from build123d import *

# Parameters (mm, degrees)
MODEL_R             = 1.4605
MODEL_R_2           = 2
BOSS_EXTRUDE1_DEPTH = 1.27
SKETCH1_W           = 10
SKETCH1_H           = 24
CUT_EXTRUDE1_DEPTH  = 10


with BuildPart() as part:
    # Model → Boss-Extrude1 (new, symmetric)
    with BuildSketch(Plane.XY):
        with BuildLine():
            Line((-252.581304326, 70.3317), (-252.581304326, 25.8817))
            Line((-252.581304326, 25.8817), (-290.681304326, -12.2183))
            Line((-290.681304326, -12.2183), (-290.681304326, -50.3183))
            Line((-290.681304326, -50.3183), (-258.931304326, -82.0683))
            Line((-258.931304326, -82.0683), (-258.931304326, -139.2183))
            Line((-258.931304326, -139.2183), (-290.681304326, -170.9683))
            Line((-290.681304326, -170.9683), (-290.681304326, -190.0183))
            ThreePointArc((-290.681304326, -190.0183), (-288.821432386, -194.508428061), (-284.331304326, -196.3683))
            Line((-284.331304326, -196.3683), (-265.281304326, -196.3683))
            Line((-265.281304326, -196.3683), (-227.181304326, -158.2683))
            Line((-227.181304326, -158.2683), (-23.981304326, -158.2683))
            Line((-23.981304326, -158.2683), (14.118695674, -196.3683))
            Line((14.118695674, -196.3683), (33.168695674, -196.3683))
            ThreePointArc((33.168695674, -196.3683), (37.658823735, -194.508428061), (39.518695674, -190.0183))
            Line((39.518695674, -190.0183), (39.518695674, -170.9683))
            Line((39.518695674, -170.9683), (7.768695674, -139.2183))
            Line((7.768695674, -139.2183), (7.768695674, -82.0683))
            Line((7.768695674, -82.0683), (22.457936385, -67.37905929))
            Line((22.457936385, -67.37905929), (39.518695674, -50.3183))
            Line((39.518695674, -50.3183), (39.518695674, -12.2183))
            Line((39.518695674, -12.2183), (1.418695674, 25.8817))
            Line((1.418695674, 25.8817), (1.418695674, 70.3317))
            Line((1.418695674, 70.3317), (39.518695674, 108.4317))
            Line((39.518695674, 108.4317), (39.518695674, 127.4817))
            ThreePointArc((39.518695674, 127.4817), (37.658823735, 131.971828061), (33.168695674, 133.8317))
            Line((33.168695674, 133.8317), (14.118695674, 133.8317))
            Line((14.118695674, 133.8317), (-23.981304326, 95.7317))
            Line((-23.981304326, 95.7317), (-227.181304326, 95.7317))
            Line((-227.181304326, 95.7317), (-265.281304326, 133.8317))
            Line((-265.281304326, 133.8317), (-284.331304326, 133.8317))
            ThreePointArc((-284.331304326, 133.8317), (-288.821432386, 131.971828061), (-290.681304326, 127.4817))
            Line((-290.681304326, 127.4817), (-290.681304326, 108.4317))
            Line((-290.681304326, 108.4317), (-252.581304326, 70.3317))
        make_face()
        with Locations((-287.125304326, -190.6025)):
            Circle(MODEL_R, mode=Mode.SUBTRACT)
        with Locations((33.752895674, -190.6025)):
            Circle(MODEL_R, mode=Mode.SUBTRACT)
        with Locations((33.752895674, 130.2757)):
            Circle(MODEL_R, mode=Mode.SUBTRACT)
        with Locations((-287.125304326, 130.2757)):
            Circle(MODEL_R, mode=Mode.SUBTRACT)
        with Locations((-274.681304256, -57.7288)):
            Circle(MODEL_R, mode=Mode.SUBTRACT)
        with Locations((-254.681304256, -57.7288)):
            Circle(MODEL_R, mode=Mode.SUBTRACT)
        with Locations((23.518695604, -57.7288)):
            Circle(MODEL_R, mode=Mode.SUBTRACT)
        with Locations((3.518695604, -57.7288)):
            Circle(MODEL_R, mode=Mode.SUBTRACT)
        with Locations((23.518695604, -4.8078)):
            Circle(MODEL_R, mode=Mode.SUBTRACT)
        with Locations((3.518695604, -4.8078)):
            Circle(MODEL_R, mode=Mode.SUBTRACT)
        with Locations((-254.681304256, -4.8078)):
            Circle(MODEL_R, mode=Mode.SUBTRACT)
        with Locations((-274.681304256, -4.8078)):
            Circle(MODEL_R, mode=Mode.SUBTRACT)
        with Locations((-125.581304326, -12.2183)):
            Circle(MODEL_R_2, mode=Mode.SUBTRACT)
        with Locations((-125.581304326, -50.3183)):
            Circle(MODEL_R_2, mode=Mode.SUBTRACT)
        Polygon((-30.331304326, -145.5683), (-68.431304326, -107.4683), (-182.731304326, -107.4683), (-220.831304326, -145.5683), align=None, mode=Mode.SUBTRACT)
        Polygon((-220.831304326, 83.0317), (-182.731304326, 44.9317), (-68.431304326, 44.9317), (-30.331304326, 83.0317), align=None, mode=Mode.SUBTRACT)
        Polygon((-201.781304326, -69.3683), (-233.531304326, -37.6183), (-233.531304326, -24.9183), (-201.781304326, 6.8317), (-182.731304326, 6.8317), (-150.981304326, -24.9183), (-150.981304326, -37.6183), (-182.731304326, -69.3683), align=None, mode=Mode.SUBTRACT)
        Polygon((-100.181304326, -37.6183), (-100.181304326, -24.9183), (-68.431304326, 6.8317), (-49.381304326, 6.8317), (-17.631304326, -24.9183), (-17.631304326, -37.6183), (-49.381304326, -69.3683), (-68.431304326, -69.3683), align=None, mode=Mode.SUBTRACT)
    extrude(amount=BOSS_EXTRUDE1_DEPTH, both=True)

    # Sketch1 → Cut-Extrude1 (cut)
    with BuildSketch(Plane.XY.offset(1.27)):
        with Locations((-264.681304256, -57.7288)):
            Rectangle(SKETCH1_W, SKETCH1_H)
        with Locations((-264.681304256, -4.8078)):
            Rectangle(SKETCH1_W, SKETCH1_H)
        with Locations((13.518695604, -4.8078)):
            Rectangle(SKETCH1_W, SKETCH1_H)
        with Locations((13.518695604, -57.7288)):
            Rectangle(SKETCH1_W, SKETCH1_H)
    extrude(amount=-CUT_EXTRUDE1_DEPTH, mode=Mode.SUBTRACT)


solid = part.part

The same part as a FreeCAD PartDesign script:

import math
import FreeCAD as App
import Part
import Sketcher
Q = App.Units.Quantity

doc = App.newDocument("Part")
params = doc.addObject("Spreadsheet::Sheet", "Params")
for row, (alias, value) in enumerate([
    ("sketch1_width", "8 in"),
    ("sketch1_radius", "0.25 in"),
    ("sketch1_diameter", "0.115 in"),
    ("sketch1_width2", "7.5 in"),
    ("sketch1_width3", "4.5 in"),
    ("pad1_length", "0.1 in"),
    ("pocket1_length", "10 mm"),
], start=1):
    params.set(f"A{row}", alias)
    params.set(f"B{row}", "=" + value)
    params.setAlias(f"B{row}", alias)

body = doc.addObject("PartDesign::Body", "Body")

sketch1 = body.newObject("Sketcher::SketchObject", "Sketch")
sketch1.AttachmentSupport = (doc.getObject("XY_Plane"), [""])
sketch1.MapMode = "FlatFace"
sketch1.addGeometry([
    Part.LineSegment(App.Vector(-252.6, 70.3, 0), App.Vector(-252.6, 25.9, 0)),
    Part.LineSegment(App.Vector(-252.6, 25.9, 0), App.Vector(-290.7, -12.2, 0)),
    Part.LineSegment(App.Vector(-290.7, -12.2, 0), App.Vector(-290.7, -50.3, 0)),
    Part.LineSegment(App.Vector(-290.7, -50.3, 0), App.Vector(-258.9, -82.1, 0)),
    Part.LineSegment(App.Vector(-258.9, -82.1, 0), App.Vector(-258.9, -139.2, 0)),
    Part.LineSegment(App.Vector(-258.9, -139.2, 0), App.Vector(-290.7, -171, 0)),
    Part.LineSegment(App.Vector(-290.7, -171, 0), App.Vector(-290.7, -190, 0)),
    Part.ArcOfCircle(Part.Circle(App.Vector(-284.3, -190, 0), App.Vector(0, 0, 1), 6.3), math.radians(180), math.radians(270)),
    Part.LineSegment(App.Vector(-284.3, -196.4, 0), App.Vector(-265.3, -196.4, 0)),
    Part.LineSegment(App.Vector(-265.3, -196.4, 0), App.Vector(-227.2, -158.3, 0)),
    Part.LineSegment(App.Vector(-227.2, -158.3, 0), App.Vector(-24, -158.3, 0)),
    Part.LineSegment(App.Vector(-24, -158.3, 0), App.Vector(14.1, -196.4, 0)),
    Part.LineSegment(App.Vector(14.1, -196.4, 0), App.Vector(33.2, -196.4, 0)),
    Part.ArcOfCircle(Part.Circle(App.Vector(33.2, -190, 0), App.Vector(0, 0, 1), 6.3), math.radians(-90), math.radians(0)),
    Part.LineSegment(App.Vector(39.5, -190, 0), App.Vector(39.5, -171, 0)),
    Part.LineSegment(App.Vector(39.5, -171, 0), App.Vector(7.8, -139.2, 0)),
    Part.LineSegment(App.Vector(7.8, -139.2, 0), App.Vector(7.8, -82.1, 0)),
    Part.LineSegment(App.Vector(7.8, -82.1, 0), App.Vector(22.5, -67.4, 0)),
    Part.LineSegment(App.Vector(22.5, -67.4, 0), App.Vector(39.5, -50.3, 0)),
    Part.LineSegment(App.Vector(39.5, -50.3, 0), App.Vector(39.5, -12.2, 0)),
    Part.LineSegment(App.Vector(39.5, -12.2, 0), App.Vector(1.4, 25.9, 0)),
    Part.LineSegment(App.Vector(1.4, 25.9, 0), App.Vector(1.4, 70.3, 0)),
    Part.LineSegment(App.Vector(1.4, 70.3, 0), App.Vector(39.5, 108.4, 0)),
    Part.LineSegment(App.Vector(39.5, 108.4, 0), App.Vector(39.5, 127.5, 0)),
    Part.ArcOfCircle(Part.Circle(App.Vector(33.2, 127.5, 0), App.Vector(0, 0, 1), 6.3), math.radians(0), math.radians(90)),
    Part.LineSegment(App.Vector(33.2, 133.8, 0), App.Vector(14.1, 133.8, 0)),
    Part.LineSegment(App.Vector(14.1, 133.8, 0), App.Vector(-24, 95.7, 0)),
    Part.LineSegment(App.Vector(-24, 95.7, 0), App.Vector(-227.2, 95.7, 0)),
    Part.LineSegment(App.Vector(-227.2, 95.7, 0), App.Vector(-265.3, 133.8, 0)),
    Part.LineSegment(App.Vector(-265.3, 133.8, 0), App.Vector(-284.3, 133.8, 0)),
    Part.ArcOfCircle(Part.Circle(App.Vector(-284.3, 127.5, 0), App.Vector(0, 0, 1), 6.3), math.radians(90), math.radians(180)),
    Part.LineSegment(App.Vector(-290.7, 127.5, 0), App.Vector(-290.7, 108.4, 0)),
    Part.LineSegment(App.Vector(-290.7, 108.4, 0), App.Vector(-252.6, 70.3, 0)),
    Part.Circle(App.Vector(-287.1, -190.6, 0), App.Vector(0, 0, 1), 1.5),
    Part.Circle(App.Vector(-274.7, -57.7, 0), App.Vector(0, 0, 1), 1.5),
    Part.Circle(App.Vector(-254.7, -57.7, 0), App.Vector(0, 0, 1), 1.5),
    Part.LineSegment(App.Vector(-182.7, -69.4, 0), App.Vector(-201.8, -69.4, 0)),
    Part.LineSegment(App.Vector(-201.8, -69.4, 0), App.Vector(-233.5, -37.6, 0)),
    Part.LineSegment(App.Vector(-233.5, -37.6, 0), App.Vector(-233.5, -24.9, 0)),
    Part.LineSegment(App.Vector(-233.5, -24.9, 0), App.Vector(-201.8, 6.8, 0)),
    Part.LineSegment(App.Vector(-201.8, 6.8, 0), App.Vector(-182.7, 6.8, 0)),
    Part.LineSegment(App.Vector(-182.7, 6.8, 0), App.Vector(-151, -24.9, 0)),
    Part.LineSegment(App.Vector(-151, -24.9, 0), App.Vector(-151, -37.6, 0)),
    Part.LineSegment(App.Vector(-151, -37.6, 0), App.Vector(-182.7, -69.4, 0)),
    Part.LineSegment(App.Vector(-68.4, -107.5, 0), App.Vector(-30.3, -145.6, 0)),
    Part.LineSegment(App.Vector(-30.3, -145.6, 0), App.Vector(-220.8, -145.6, 0)),
    Part.LineSegment(App.Vector(-220.8, -145.6, 0), App.Vector(-182.7, -107.5, 0)),
    Part.LineSegment(App.Vector(-182.7, -107.5, 0), App.Vector(-68.4, -107.5, 0)),
    Part.Circle(App.Vector(33.8, -190.6, 0), App.Vector(0, 0, 1), 1.5),
    Part.Circle(App.Vector(-125.6, -50.3, 0), App.Vector(0, 0, 1), 2),
    Part.LineSegment(App.Vector(-68.4, -69.4, 0), App.Vector(-100.2, -37.6, 0)),
    Part.LineSegment(App.Vector(-100.2, -37.6, 0), App.Vector(-100.2, -24.9, 0)),
    Part.LineSegment(App.Vector(-100.2, -24.9, 0), App.Vector(-68.4, 6.8, 0)),
    Part.LineSegment(App.Vector(-68.4, 6.8, 0), App.Vector(-49.4, 6.8, 0)),
    Part.LineSegment(App.Vector(-49.4, 6.8, 0), App.Vector(-17.6, -24.9, 0)),
    Part.LineSegment(App.Vector(-17.6, -24.9, 0), App.Vector(-17.6, -37.6, 0)),
    Part.LineSegment(App.Vector(-17.6, -37.6, 0), App.Vector(-49.4, -69.4, 0)),
    Part.LineSegment(App.Vector(-49.4, -69.4, 0), App.Vector(-68.4, -69.4, 0)),
    Part.Circle(App.Vector(3.5, -57.7, 0), App.Vector(0, 0, 1), 1.5),
    Part.Circle(App.Vector(23.5, -57.7, 0), App.Vector(0, 0, 1), 1.5),
    Part.Circle(App.Vector(-274.7, -4.8, 0), App.Vector(0, 0, 1), 1.5),
    Part.Circle(App.Vector(-254.7, -4.8, 0), App.Vector(0, 0, 1), 1.5),
    Part.Circle(App.Vector(-287.1, 130.3, 0), App.Vector(0, 0, 1), 1.5),
    Part.Circle(App.Vector(-125.6, -12.2, 0), App.Vector(0, 0, 1), 2),
    Part.Circle(App.Vector(3.5, -4.8, 0), App.Vector(0, 0, 1), 1.5),
    Part.Circle(App.Vector(23.5, -4.8, 0), App.Vector(0, 0, 1), 1.5),
    Part.LineSegment(App.Vector(-182.7, 44.9, 0), App.Vector(-220.8, 83, 0)),
    Part.LineSegment(App.Vector(-220.8, 83, 0), App.Vector(-30.3, 83, 0)),
    Part.LineSegment(App.Vector(-30.3, 83, 0), App.Vector(-68.4, 44.9, 0)),
    Part.LineSegment(App.Vector(-68.4, 44.9, 0), App.Vector(-182.7, 44.9, 0)),
    Part.Circle(App.Vector(33.8, 130.3, 0), App.Vector(0, 0, 1), 1.5),
], False)
sketch1.addConstraint([
    Sketcher.Constraint("Coincident", 0, 2, 1, 1),
    Sketcher.Constraint("Coincident", 1, 2, 2, 1),
    Sketcher.Constraint("Coincident", 2, 2, 3, 1),
    Sketcher.Constraint("Coincident", 3, 2, 4, 1),
    Sketcher.Constraint("Coincident", 4, 2, 5, 1),
    Sketcher.Constraint("Coincident", 5, 2, 6, 1),
    Sketcher.Constraint("Tangent", 6, 2, 7, 1),
    Sketcher.Constraint("Tangent", 7, 2, 8, 1),
    Sketcher.Constraint("Coincident", 8, 2, 9, 1),
    Sketcher.Constraint("Coincident", 9, 2, 10, 1),
    Sketcher.Constraint("Coincident", 10, 2, 11, 1),
    Sketcher.Constraint("Coincident", 11, 2, 12, 1),
    Sketcher.Constraint("Tangent", 12, 2, 13, 1),
    Sketcher.Constraint("Tangent", 13, 2, 14, 1),
    Sketcher.Constraint("Coincident", 14, 2, 15, 1),
    Sketcher.Constraint("Coincident", 15, 2, 16, 1),
    Sketcher.Constraint("Coincident", 16, 2, 17, 1),
    Sketcher.Constraint("Coincident", 17, 2, 18, 1),
    Sketcher.Constraint("Coincident", 18, 2, 19, 1),
    Sketcher.Constraint("Coincident", 19, 2, 20, 1),
    Sketcher.Constraint("Coincident", 20, 2, 21, 1),
    Sketcher.Constraint("Coincident", 21, 2, 22, 1),
    Sketcher.Constraint("Coincident", 22, 2, 23, 1),
    Sketcher.Constraint("Tangent", 23, 2, 24, 1),
    Sketcher.Constraint("Tangent", 24, 2, 25, 1),
    Sketcher.Constraint("Coincident", 25, 2, 26, 1),
    Sketcher.Constraint("Coincident", 26, 2, 27, 1),
    Sketcher.Constraint("Coincident", 27, 2, 28, 1),
    Sketcher.Constraint("Coincident", 28, 2, 29, 1),
    Sketcher.Constraint("Tangent", 29, 2, 30, 1),
    Sketcher.Constraint("Tangent", 30, 2, 31, 1),
    Sketcher.Constraint("Coincident", 31, 2, 32, 1),
    Sketcher.Constraint("Coincident", 32, 2, 0, 1),
    Sketcher.Constraint("Coincident", 36, 2, 37, 1),
    Sketcher.Constraint("Coincident", 37, 2, 38, 1),
    Sketcher.Constraint("Coincident", 38, 2, 39, 1),
    Sketcher.Constraint("Coincident", 39, 2, 40, 1),
    Sketcher.Constraint("Coincident", 40, 2, 41, 1),
    Sketcher.Constraint("Coincident", 41, 2, 42, 1),
    Sketcher.Constraint("Coincident", 42, 2, 43, 1),
    Sketcher.Constraint("Coincident", 43, 2, 36, 1),
    Sketcher.Constraint("Coincident", 44, 2, 45, 1),
    Sketcher.Constraint("Coincident", 45, 2, 46, 1),
    Sketcher.Constraint("Coincident", 46, 2, 47, 1),
    Sketcher.Constraint("Coincident", 47, 2, 44, 1),
    Sketcher.Constraint("Coincident", 50, 2, 51, 1),
    Sketcher.Constraint("Coincident", 51, 2, 52, 1),
    Sketcher.Constraint("Coincident", 52, 2, 53, 1),
    Sketcher.Constraint("Coincident", 53, 2, 54, 1),
    Sketcher.Constraint("Coincident", 54, 2, 55, 1),
    Sketcher.Constraint("Coincident", 55, 2, 56, 1),
    Sketcher.Constraint("Coincident", 56, 2, 57, 1),
    Sketcher.Constraint("Coincident", 57, 2, 50, 1),
    Sketcher.Constraint("Coincident", 66, 2, 67, 1),
    Sketcher.Constraint("Coincident", 67, 2, 68, 1),
    Sketcher.Constraint("Coincident", 68, 2, 69, 1),
    Sketcher.Constraint("Coincident", 69, 2, 66, 1),
    Sketcher.Constraint("Vertical", 0),
    Sketcher.Constraint("Vertical", 2),
    Sketcher.Constraint("Vertical", 4),
    Sketcher.Constraint("Vertical", 6),
    Sketcher.Constraint("Horizontal", 8),
    Sketcher.Constraint("Horizontal", 10),
    Sketcher.Constraint("Horizontal", 12),
    Sketcher.Constraint("Vertical", 14),
    Sketcher.Constraint("Vertical", 16),
    Sketcher.Constraint("Vertical", 19),
    Sketcher.Constraint("Vertical", 21),
    Sketcher.Constraint("Vertical", 23),
    Sketcher.Constraint("Horizontal", 25),
    Sketcher.Constraint("Horizontal", 27),
    Sketcher.Constraint("Horizontal", 29),
    Sketcher.Constraint("Vertical", 31),
    Sketcher.Constraint("Horizontal", 36),
    Sketcher.Constraint("Vertical", 38),
    Sketcher.Constraint("Horizontal", 40),
    Sketcher.Constraint("Vertical", 42),
    Sketcher.Constraint("Horizontal", 45),
    Sketcher.Constraint("Horizontal", 47),
    Sketcher.Constraint("Vertical", 51),
    Sketcher.Constraint("Horizontal", 53),
    Sketcher.Constraint("Vertical", 55),
    Sketcher.Constraint("Horizontal", 57),
    Sketcher.Constraint("Horizontal", 67),
    Sketcher.Constraint("Horizontal", 69),
    Sketcher.Constraint("Equal", 7, 13),
    Sketcher.Constraint("Equal", 13, 24),
    Sketcher.Constraint("Equal", 24, 30),
    Sketcher.Constraint("Equal", 33, 34),
    Sketcher.Constraint("Equal", 34, 35),
    Sketcher.Constraint("Equal", 35, 48),
    Sketcher.Constraint("Equal", 48, 58),
    Sketcher.Constraint("Equal", 58, 59),
    Sketcher.Constraint("Equal", 59, 60),
    Sketcher.Constraint("Equal", 60, 61),
    Sketcher.Constraint("Equal", 61, 62),
    Sketcher.Constraint("Equal", 49, 63),
    Sketcher.Constraint("Equal", 62, 64),
    Sketcher.Constraint("Equal", 64, 65),
    Sketcher.Constraint("Equal", 65, 70),
    Sketcher.Constraint("Perpendicular", 1, 3),
    Sketcher.Constraint("Perpendicular", 3, 5),
    Sketcher.Constraint("Parallel", 5, 9),
    Sketcher.Constraint("Perpendicular", 9, 11),
    Sketcher.Constraint("Parallel", 11, 15),
    Sketcher.Constraint("Perpendicular", 15, 17),
    Sketcher.Constraint("Parallel", 17, 18),
    Sketcher.Constraint("Perpendicular", 18, 20),
    Sketcher.Constraint("Perpendicular", 20, 22),
    Sketcher.Constraint("Parallel", 22, 26),
    Sketcher.Constraint("Perpendicular", 26, 28),
    Sketcher.Constraint("Parallel", 28, 32),
    Sketcher.Constraint("Parallel", 32, 37),
    Sketcher.Constraint("Perpendicular", 37, 39),
    Sketcher.Constraint("Perpendicular", 39, 41),
    Sketcher.Constraint("Perpendicular", 41, 43),
    Sketcher.Constraint("Perpendicular", 43, 44),
    Sketcher.Constraint("Perpendicular", 44, 46),
    Sketcher.Constraint("Perpendicular", 46, 50),
    Sketcher.Constraint("Perpendicular", 50, 52),
    Sketcher.Constraint("Perpendicular", 52, 54),
    Sketcher.Constraint("Perpendicular", 54, 56),
    Sketcher.Constraint("Perpendicular", 56, 66),
    Sketcher.Constraint("Perpendicular", 66, 68),
    Sketcher.Constraint("Horizontal", 7, 3, 13, 3),
    Sketcher.Constraint("Horizontal", 24, 3, 30, 3),
    Sketcher.Constraint("Horizontal", 34, 3, 35, 3),
    Sketcher.Constraint("Horizontal", 33, 3, 48, 3),
    Sketcher.Constraint("Horizontal", 35, 3, 58, 3),
    Sketcher.Constraint("Horizontal", 58, 3, 59, 3),
    Sketcher.Constraint("Horizontal", 60, 3, 61, 3),
    Sketcher.Constraint("Horizontal", 61, 3, 64, 3),
    Sketcher.Constraint("Horizontal", 64, 3, 65, 3),
    Sketcher.Constraint("Horizontal", 62, 3, 70, 3),
    Sketcher.Constraint("Horizontal", 63, 3, 1, 2),
    Sketcher.Constraint("Horizontal", 49, 3, 2, 2),
    Sketcher.Constraint("Horizontal", 5, 2, 14, 2),
    Sketcher.Constraint("Horizontal", 4, 2, 15, 2),
    Sketcher.Constraint("Horizontal", 3, 2, 16, 2),
    Sketcher.Constraint("Horizontal", 2, 2, 18, 2),
    Sketcher.Constraint("Horizontal", 1, 2, 19, 2),
    Sketcher.Constraint("Horizontal", 0, 2, 20, 2),
    Sketcher.Constraint("Horizontal", 22, 2, 31, 2),
    Sketcher.Constraint("Horizontal", 21, 2, 32, 2),
    Sketcher.Constraint("Horizontal", 38, 2, 41, 2),
    Sketcher.Constraint("Horizontal", 37, 2, 42, 2),
    Sketcher.Constraint("Horizontal", 42, 2, 50, 2),
    Sketcher.Constraint("Horizontal", 41, 2, 51, 2),
    Sketcher.Constraint("Horizontal", 40, 2, 52, 2),
    Sketcher.Constraint("Horizontal", 51, 2, 54, 2),
    Sketcher.Constraint("Horizontal", 50, 2, 55, 2),
    Sketcher.Constraint("Horizontal", 43, 2, 56, 2),
    Sketcher.Constraint("Vertical", 13, 3, 24, 3),
    Sketcher.Constraint("Vertical", 7, 3, 30, 3),
    Sketcher.Constraint("Vertical", 34, 3, 60, 3),
    Sketcher.Constraint("Vertical", 35, 3, 61, 3),
    Sketcher.Constraint("Vertical", 33, 3, 62, 3),
    Sketcher.Constraint("Vertical", 49, 3, 63, 3),
    Sketcher.Constraint("Vertical", 58, 3, 64, 3),
    Sketcher.Constraint("Vertical", 59, 3, 65, 3),
    Sketcher.Constraint("Vertical", 48, 3, 70, 3),
    Sketcher.Constraint("Vertical", 2, 2, 5, 2),
    Sketcher.Constraint("Vertical", 11, 2, 25, 2),
    Sketcher.Constraint("Vertical", 10, 2, 26, 2),
    Sketcher.Constraint("Vertical", 9, 2, 27, 2),
    Sketcher.Constraint("Vertical", 36, 2, 39, 2),
    Sketcher.Constraint("Vertical", 43, 2, 46, 2),
    Sketcher.Constraint("Vertical", 47, 2, 52, 2),
    Sketcher.Constraint("Vertical", 45, 2, 66, 2),
    Sketcher.Constraint("Vertical", 44, 2, 67, 2),
    Sketcher.Constraint("Vertical", 57, 2, 68, 2),
    Sketcher.Constraint("Equal", 8, 12),
    Sketcher.Constraint("Equal", 29, 36),
    Sketcher.Constraint("Equal", 40, 53),
    Sketcher.Constraint("Equal", 57, 6),
    Sketcher.Constraint("Equal", 14, 23),
    Sketcher.Constraint("Equal", 1, 9),
    Sketcher.Constraint("Equal", 15, 37),
    Sketcher.Constraint("Equal", 32, 44),
    Sketcher.Constraint("DistanceX", 10, 1, 10, 2, Q("8 in")),
    Sketcher.Constraint("Radius", 7, Q("0.25 in")),
    Sketcher.Constraint("Diameter", 33, Q("0.115 in")),
    Sketcher.Constraint("DistanceX", 45, 2, 45, 1, Q("7.5 in")),
    Sketcher.Constraint("DistanceX", 47, 1, 47, 2, Q("4.5 in")),
    Sketcher.Constraint("DistanceY", 2, 2, 2, 1, Q("1.5 in")),
    Sketcher.Constraint("DistanceY", 38, 1, 38, 2, Q("0.5 in")),
    Sketcher.Constraint("DistanceX", 8, 1, 8, 2, Q("0.75 in")),
    Sketcher.Constraint("DistanceY", 0, 2, 0, 1, Q("1.75 in")),
    Sketcher.Constraint("DistanceY", 4, 2, 4, 1, Q("2.25 in")),
    Sketcher.Constraint("Diameter", 49, 4.0),
    Sketcher.Constraint("DistanceY", 7, 3, -1, 1, 190.0183),
    Sketcher.Constraint("DistanceY", -1, 1, 24, 3, 127.4817),
    Sketcher.Constraint("DistanceY", 33, 3, -1, 1, 190.6025),
    Sketcher.Constraint("DistanceY", 34, 3, -1, 1, 57.7288),
    Sketcher.Constraint("DistanceY", 60, 3, -1, 1, 4.8078),
    Sketcher.Constraint("DistanceY", -1, 1, 62, 3, 130.2757),
    Sketcher.Constraint("DistanceY", 36, 2, -1, 1, 69.3683),
    Sketcher.Constraint("DistanceY", 44, 2, -1, 1, 145.5683),
    Sketcher.Constraint("DistanceY", -1, 1, 66, 2, 83.0317),
    Sketcher.Constraint("DistanceY", 17, 2, -1, 1, 67.379059),
    Sketcher.Constraint("DistanceX", 7, 3, -1, 1, 284.331304),
    Sketcher.Constraint("DistanceX", 33, 3, -1, 1, 287.125304),
    Sketcher.Constraint("DistanceX", 34, 3, -1, 1, 274.681304),
    Sketcher.Constraint("DistanceX", 35, 3, -1, 1, 254.681304),
    Sketcher.Constraint("DistanceX", -1, 1, 48, 3, 33.752896),
    Sketcher.Constraint("DistanceX", 49, 3, -1, 1, 125.581304),
    Sketcher.Constraint("DistanceX", -1, 1, 58, 3, 3.518696),
    Sketcher.Constraint("DistanceX", -1, 1, 59, 3, 23.518696),
    Sketcher.Constraint("DistanceX", 36, 2, -1, 1, 201.781304),
])
sketch1.setExpression("Constraints[179]", "Params.sketch1_width")
sketch1.setExpression("Constraints[180]", "Params.sketch1_radius")
sketch1.setExpression("Constraints[181]", "Params.sketch1_diameter")
sketch1.setExpression("Constraints[182]", "Params.sketch1_width2")
sketch1.setExpression("Constraints[183]", "Params.sketch1_width3")
pad1 = body.newObject("PartDesign::Pad", "Pad")
pad1.Profile = sketch1
pad1.setExpression("Length", "Params.pad1_length")
pad1.Midplane = True

sketch2 = body.newObject("Sketcher::SketchObject", "Sketch001")
sketch2.AttachmentSupport = (doc.getObject("XY_Plane"), [""])
sketch2.MapMode = "FlatFace"
sketch2.AttachmentOffset = App.Placement(App.Vector(0, 0, 0.05 * 25.4), App.Rotation())
sketch2.addGeometry([
    Part.LineSegment(App.Vector(-270, -46, 0), App.Vector(-270, -70, 0)),
    Part.LineSegment(App.Vector(-270, -70, 0), App.Vector(-260, -70, 0)),
    Part.LineSegment(App.Vector(-260, -70, 0), App.Vector(-260, -46, 0)),
    Part.LineSegment(App.Vector(-260, -46, 0), App.Vector(-270, -46, 0)),
    Part.LineSegment(App.Vector(-270, 7, 0), App.Vector(-270, -17, 0)),
    Part.LineSegment(App.Vector(-270, -17, 0), App.Vector(-260, -17, 0)),
    Part.LineSegment(App.Vector(-260, -17, 0), App.Vector(-260, 7, 0)),
    Part.LineSegment(App.Vector(-260, 7, 0), App.Vector(-270, 7, 0)),
    Part.LineSegment(App.Vector(9, 7, 0), App.Vector(9, -17, 0)),
    Part.LineSegment(App.Vector(9, -17, 0), App.Vector(19, -17, 0)),
    Part.LineSegment(App.Vector(19, -17, 0), App.Vector(19, 7, 0)),
    Part.LineSegment(App.Vector(19, 7, 0), App.Vector(9, 7, 0)),
    Part.LineSegment(App.Vector(9, -46, 0), App.Vector(9, -70, 0)),
    Part.LineSegment(App.Vector(9, -70, 0), App.Vector(19, -70, 0)),
    Part.LineSegment(App.Vector(19, -70, 0), App.Vector(19, -46, 0)),
    Part.LineSegment(App.Vector(19, -46, 0), App.Vector(9, -46, 0)),
], False)
sketch2.addConstraint([
    Sketcher.Constraint("Coincident", 0, 2, 1, 1),
    Sketcher.Constraint("Coincident", 1, 2, 2, 1),
    Sketcher.Constraint("Coincident", 2, 2, 3, 1),
    Sketcher.Constraint("Coincident", 3, 2, 0, 1),
    Sketcher.Constraint("Coincident", 4, 2, 5, 1),
    Sketcher.Constraint("Coincident", 5, 2, 6, 1),
    Sketcher.Constraint("Coincident", 6, 2, 7, 1),
    Sketcher.Constraint("Coincident", 7, 2, 4, 1),
    Sketcher.Constraint("Coincident", 8, 2, 9, 1),
    Sketcher.Constraint("Coincident", 9, 2, 10, 1),
    Sketcher.Constraint("Coincident", 10, 2, 11, 1),
    Sketcher.Constraint("Coincident", 11, 2, 8, 1),
    Sketcher.Constraint("Coincident", 12, 2, 13, 1),
    Sketcher.Constraint("Coincident", 13, 2, 14, 1),
    Sketcher.Constraint("Coincident", 14, 2, 15, 1),
    Sketcher.Constraint("Coincident", 15, 2, 12, 1),
    Sketcher.Constraint("Vertical", 0),
    Sketcher.Constraint("Horizontal", 1),
    Sketcher.Constraint("Vertical", 2),
    Sketcher.Constraint("Horizontal", 3),
    Sketcher.Constraint("Vertical", 4),
    Sketcher.Constraint("Horizontal", 5),
    Sketcher.Constraint("Vertical", 6),
    Sketcher.Constraint("Horizontal", 7),
    Sketcher.Constraint("Vertical", 8),
    Sketcher.Constraint("Horizontal", 9),
    Sketcher.Constraint("Vertical", 10),
    Sketcher.Constraint("Horizontal", 11),
    Sketcher.Constraint("Vertical", 12),
    Sketcher.Constraint("Horizontal", 13),
    Sketcher.Constraint("Vertical", 14),
    Sketcher.Constraint("Horizontal", 15),
    Sketcher.Constraint("Horizontal", 5, 2, 8, 2),
    Sketcher.Constraint("Horizontal", 7, 2, 10, 2),
    Sketcher.Constraint("Horizontal", 1, 2, 12, 2),
    Sketcher.Constraint("Horizontal", 3, 2, 14, 2),
    Sketcher.Constraint("Vertical", 3, 2, 4, 2),
    Sketcher.Constraint("Vertical", 2, 2, 5, 2),
    Sketcher.Constraint("Vertical", 11, 2, 12, 2),
    Sketcher.Constraint("Vertical", 10, 2, 13, 2),
    Sketcher.Constraint("Equal", 7, 9),
    Sketcher.Constraint("Equal", 2, 4),
    Sketcher.Constraint("DistanceX", 1, 1, 1, 2, 10.0),
    Sketcher.Constraint("DistanceY", 0, 2, 0, 1, 24.0),
    Sketcher.Constraint("DistanceY", 0, 2, -1, 1, 69.7288),
    Sketcher.Constraint("DistanceY", 4, 2, -1, 1, 16.8078),
    Sketcher.Constraint("DistanceX", 5, 2, 8, 2, 268.2),
    Sketcher.Constraint("DistanceX", 0, 2, -1, 1, 269.681304),
])
pocket1 = body.newObject("PartDesign::Pocket", "Pocket")
pocket1.Profile = sketch2
pocket1.setExpression("Length", "Params.pocket1_length")

doc.recompute()
